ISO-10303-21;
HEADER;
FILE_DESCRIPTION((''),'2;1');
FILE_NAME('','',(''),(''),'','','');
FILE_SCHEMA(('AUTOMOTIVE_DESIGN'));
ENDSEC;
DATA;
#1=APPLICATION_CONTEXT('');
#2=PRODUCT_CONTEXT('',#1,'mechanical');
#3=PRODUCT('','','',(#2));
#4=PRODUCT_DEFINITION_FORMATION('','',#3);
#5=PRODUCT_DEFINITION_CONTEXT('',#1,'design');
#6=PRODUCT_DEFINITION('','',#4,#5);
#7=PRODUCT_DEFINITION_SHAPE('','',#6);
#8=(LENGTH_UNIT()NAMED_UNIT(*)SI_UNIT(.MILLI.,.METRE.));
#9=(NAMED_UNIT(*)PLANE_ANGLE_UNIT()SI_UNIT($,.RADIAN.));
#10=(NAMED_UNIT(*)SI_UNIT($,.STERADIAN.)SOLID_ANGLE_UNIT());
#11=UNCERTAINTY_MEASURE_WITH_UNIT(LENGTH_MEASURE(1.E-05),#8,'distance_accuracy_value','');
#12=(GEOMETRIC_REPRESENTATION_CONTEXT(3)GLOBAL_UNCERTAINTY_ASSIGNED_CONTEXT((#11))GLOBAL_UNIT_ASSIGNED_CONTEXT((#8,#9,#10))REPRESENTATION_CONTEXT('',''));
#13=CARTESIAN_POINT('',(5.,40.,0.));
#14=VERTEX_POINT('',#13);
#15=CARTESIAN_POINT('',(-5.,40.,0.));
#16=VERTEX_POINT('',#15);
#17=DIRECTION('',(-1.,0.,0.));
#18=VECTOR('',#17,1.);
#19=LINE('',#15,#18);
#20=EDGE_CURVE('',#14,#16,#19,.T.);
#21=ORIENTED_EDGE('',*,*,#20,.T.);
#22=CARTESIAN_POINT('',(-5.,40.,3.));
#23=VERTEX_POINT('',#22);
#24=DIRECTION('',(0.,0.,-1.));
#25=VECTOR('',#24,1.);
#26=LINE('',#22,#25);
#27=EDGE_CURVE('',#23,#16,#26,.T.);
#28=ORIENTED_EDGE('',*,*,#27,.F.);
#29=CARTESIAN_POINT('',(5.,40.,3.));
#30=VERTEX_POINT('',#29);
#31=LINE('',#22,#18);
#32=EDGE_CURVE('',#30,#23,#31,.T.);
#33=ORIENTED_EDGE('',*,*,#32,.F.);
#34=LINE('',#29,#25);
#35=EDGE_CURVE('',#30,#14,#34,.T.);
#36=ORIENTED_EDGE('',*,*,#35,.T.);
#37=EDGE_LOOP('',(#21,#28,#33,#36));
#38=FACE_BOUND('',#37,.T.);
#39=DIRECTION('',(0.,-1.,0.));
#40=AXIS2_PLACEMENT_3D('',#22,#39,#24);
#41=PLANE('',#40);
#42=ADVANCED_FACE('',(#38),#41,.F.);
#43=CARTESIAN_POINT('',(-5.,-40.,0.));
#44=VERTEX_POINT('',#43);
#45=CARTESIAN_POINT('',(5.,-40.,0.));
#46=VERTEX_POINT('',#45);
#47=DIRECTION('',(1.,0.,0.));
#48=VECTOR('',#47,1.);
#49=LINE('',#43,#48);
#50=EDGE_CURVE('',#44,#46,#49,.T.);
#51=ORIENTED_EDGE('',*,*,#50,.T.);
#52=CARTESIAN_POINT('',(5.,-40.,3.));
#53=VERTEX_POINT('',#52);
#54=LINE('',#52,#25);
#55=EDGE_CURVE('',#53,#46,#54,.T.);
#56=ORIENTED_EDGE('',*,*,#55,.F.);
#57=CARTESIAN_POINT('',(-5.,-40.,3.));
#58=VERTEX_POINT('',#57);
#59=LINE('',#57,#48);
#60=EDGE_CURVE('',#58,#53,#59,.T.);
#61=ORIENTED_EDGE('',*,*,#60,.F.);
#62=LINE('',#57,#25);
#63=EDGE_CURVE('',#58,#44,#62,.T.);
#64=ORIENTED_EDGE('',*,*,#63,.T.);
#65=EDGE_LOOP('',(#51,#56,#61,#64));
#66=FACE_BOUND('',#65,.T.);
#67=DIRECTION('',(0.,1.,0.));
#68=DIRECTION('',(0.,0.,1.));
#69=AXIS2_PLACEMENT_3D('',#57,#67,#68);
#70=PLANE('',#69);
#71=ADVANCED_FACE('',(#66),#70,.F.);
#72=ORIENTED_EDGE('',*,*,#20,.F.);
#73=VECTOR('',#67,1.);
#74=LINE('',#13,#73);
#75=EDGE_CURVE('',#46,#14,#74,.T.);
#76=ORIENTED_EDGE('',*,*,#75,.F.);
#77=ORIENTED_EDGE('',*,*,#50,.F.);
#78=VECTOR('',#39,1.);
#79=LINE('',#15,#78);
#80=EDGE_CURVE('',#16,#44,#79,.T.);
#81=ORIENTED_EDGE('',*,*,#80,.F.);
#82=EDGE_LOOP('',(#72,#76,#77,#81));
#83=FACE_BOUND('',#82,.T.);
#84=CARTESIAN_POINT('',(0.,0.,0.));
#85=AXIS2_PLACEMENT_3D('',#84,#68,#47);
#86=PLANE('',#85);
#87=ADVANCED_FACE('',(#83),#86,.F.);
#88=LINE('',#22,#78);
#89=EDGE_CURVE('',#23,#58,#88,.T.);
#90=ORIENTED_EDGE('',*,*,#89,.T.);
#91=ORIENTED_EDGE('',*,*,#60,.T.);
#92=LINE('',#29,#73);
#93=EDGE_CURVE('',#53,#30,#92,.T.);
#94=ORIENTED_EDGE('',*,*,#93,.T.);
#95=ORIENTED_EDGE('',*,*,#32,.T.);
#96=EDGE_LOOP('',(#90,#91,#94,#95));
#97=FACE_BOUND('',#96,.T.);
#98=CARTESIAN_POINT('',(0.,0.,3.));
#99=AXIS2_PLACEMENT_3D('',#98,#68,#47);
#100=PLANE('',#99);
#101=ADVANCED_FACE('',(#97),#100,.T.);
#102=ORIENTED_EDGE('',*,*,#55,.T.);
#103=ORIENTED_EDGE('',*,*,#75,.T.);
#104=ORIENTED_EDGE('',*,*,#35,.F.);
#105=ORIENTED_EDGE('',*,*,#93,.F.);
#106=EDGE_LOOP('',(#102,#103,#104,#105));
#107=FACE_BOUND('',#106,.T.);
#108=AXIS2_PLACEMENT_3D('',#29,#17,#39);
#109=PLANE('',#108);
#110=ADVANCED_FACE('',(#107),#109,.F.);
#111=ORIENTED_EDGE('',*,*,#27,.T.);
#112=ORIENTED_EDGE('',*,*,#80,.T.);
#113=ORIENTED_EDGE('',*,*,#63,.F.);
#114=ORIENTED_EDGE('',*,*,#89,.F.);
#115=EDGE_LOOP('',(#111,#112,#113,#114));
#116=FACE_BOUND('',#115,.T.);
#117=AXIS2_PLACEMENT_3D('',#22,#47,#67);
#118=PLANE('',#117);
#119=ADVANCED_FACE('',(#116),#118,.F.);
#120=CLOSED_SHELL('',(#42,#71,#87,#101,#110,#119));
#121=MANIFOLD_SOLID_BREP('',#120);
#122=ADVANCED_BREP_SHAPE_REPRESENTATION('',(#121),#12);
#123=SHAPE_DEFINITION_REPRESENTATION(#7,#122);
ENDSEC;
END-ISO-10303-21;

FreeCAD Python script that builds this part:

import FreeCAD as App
import Part
import Sketcher
from FreeCAD import Vector


def add_polygon(sketch, points):
    """Adds a closed chain of lines whose ends are joined by coincident constraints."""
    first, n = sketch.GeometryCount, len(points)
    for a, b in zip(points, points[1:] + points[:1]):
        sketch.addGeometry(Part.LineSegment(App.Vector(*a, 0), App.Vector(*b, 0)), False)
    for i in range(n):
        sketch.addConstraint(Sketcher.Constraint("Coincident", first + i, 2, first + (i + 1) % n, 1))

doc = App.newDocument("Part")
body = doc.addObject("PartDesign::Body", "Body")

sketch1 = doc.addObject("Sketcher::SketchObject", "Sketch")
body.addObject(sketch1)
sketch1.AttachmentSupport = (doc.XY_Plane, [""])
sketch1.MapMode = "FlatFace"
add_polygon(sketch1, [(-5, 40), (-5, -40), (5, -40), (5, 40)])
sketch1.addConstraint(Sketcher.Constraint("Vertical", 0))
sketch1.addConstraint(Sketcher.Constraint("Horizontal", 1))
sketch1.addConstraint(Sketcher.Constraint("Vertical", 2))
sketch1.addConstraint(Sketcher.Constraint("Horizontal", 3))
sketch1.addConstraint(Sketcher.Constraint("Symmetric", 0, 2, 2, 2, -1, 1))
sketch1.addConstraint(Sketcher.Constraint("DistanceX", 1, 1, 1, 2, 10.0))
sketch1.addConstraint(Sketcher.Constraint("DistanceY", 0, 2, 0, 1, 80.0))
pad1 = doc.addObject("PartDesign::Pad", "Pad")
body.addObject(pad1)
pad1.Profile = sketch1
pad1.Length = 3

doc.recompute()
